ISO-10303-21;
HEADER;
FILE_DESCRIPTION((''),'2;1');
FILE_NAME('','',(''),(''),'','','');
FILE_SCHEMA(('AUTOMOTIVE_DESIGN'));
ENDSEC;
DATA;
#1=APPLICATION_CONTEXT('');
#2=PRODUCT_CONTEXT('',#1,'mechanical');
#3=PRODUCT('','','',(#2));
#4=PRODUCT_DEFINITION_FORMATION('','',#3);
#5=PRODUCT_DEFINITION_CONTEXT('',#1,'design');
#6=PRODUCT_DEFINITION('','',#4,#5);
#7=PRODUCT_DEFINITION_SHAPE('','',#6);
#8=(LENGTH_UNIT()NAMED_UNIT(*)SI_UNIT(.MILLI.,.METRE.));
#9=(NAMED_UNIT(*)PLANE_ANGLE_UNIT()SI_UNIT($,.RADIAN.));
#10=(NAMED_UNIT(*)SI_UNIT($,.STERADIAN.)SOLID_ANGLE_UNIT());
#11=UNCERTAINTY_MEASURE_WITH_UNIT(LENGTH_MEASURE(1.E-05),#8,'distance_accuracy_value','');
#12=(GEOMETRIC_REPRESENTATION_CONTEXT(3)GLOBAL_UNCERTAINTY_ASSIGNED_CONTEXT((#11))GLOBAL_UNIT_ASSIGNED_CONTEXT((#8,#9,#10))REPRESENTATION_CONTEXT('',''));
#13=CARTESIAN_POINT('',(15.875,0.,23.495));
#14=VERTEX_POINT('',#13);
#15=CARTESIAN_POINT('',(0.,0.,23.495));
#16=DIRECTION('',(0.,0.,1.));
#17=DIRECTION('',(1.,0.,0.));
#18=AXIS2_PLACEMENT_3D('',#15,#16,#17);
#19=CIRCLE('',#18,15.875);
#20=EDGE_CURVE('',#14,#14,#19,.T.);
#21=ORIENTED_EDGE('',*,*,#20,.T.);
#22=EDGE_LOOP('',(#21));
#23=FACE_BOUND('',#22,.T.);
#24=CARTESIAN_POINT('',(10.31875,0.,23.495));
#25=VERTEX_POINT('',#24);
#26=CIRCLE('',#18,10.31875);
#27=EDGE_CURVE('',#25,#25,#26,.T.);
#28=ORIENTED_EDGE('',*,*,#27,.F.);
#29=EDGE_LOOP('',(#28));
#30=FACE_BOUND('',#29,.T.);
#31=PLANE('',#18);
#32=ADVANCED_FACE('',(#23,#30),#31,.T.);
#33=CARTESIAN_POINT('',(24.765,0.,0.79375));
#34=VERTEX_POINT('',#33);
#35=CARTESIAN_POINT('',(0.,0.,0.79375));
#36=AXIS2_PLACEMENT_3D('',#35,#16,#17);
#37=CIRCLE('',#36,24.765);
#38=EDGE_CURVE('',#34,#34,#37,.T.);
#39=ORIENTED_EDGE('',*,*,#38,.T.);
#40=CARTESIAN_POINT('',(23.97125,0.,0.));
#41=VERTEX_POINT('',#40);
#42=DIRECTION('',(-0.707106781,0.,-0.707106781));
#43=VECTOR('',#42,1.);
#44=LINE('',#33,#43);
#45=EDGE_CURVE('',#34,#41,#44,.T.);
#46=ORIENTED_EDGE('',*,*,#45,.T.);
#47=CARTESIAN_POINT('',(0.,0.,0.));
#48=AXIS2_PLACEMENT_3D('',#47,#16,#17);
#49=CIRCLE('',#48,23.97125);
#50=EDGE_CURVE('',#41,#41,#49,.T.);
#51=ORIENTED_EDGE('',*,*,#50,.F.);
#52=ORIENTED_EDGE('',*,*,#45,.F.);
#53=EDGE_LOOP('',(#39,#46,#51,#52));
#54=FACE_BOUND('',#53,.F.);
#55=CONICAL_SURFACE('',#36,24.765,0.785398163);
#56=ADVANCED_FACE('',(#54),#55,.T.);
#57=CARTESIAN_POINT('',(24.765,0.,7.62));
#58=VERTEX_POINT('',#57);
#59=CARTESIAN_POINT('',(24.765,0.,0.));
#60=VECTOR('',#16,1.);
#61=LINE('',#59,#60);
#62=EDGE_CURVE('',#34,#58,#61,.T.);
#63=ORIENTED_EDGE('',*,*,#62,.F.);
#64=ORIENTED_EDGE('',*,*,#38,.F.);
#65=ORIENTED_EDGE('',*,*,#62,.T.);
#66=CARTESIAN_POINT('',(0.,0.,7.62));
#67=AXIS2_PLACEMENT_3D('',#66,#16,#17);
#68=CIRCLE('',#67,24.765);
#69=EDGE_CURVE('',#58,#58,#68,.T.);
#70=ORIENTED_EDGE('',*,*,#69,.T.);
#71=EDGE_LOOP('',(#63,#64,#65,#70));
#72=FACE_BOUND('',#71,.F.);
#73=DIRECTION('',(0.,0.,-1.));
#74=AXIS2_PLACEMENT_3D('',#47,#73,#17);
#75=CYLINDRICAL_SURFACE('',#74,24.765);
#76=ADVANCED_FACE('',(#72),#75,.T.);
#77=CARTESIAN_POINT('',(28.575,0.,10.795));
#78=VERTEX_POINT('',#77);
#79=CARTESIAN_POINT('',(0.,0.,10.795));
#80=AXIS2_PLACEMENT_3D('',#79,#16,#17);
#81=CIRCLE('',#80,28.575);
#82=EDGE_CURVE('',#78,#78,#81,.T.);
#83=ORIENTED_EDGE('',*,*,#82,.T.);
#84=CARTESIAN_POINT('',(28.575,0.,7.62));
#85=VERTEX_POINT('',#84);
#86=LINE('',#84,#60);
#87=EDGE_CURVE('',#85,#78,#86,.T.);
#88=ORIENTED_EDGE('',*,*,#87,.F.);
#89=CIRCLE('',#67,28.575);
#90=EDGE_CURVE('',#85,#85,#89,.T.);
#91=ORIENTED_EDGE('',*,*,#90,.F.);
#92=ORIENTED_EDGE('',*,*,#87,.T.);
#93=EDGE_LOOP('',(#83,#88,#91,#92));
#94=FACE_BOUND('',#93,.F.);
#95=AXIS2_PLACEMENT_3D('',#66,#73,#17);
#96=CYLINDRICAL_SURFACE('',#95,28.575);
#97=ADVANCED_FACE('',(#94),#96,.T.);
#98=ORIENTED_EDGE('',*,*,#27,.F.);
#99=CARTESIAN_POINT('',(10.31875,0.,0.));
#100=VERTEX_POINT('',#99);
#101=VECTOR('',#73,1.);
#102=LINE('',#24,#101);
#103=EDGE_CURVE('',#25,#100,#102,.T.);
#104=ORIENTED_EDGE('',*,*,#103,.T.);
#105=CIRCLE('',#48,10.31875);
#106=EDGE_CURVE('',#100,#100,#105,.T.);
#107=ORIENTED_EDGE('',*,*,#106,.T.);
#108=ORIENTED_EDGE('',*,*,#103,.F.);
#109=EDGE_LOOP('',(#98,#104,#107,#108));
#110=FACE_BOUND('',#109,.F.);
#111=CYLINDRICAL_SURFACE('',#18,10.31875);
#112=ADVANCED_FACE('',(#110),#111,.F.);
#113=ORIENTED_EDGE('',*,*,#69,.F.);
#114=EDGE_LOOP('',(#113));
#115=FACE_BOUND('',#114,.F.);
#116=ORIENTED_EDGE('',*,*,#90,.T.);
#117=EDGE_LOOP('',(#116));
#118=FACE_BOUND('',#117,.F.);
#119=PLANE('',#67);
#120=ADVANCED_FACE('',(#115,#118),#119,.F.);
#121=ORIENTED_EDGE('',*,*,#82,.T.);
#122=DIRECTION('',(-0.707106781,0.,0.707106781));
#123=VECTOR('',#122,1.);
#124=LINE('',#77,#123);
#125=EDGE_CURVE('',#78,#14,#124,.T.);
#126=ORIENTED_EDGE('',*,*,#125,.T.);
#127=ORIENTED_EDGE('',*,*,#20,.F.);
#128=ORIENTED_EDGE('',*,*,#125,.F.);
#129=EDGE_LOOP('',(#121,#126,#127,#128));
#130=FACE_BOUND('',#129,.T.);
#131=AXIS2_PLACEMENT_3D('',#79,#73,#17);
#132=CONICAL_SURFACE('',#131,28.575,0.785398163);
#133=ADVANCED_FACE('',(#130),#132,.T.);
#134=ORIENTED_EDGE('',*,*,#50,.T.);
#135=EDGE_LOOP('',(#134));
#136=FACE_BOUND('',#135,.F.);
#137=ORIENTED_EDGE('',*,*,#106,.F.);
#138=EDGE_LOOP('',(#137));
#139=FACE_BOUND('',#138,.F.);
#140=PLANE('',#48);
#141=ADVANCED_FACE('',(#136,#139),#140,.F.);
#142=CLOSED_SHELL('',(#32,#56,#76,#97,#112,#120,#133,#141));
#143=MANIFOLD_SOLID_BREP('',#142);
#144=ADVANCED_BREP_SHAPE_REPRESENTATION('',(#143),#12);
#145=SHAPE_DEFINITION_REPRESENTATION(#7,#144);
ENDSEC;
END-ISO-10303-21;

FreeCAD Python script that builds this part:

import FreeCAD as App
import Part
import Sketcher
Q = App.Units.Quantity


def edges_at(feature, points):
    """Names of the edges that pass closest to the given points."""
    edges = feature.Shape.Edges
    near = lambda p: min(range(len(edges)), key=lambda i: edges[i].distToShape(Part.Vertex(*p))[0])
    return sorted({f"Edge{near(p) + 1}" for p in points})

doc = App.newDocument("Part")
body = doc.addObject("PartDesign::Body", "Body")

sketch1 = body.newObject("Sketcher::SketchObject", "Sketch")
sketch1.AttachmentSupport = (doc.getObject("XY_Plane"), [""])
sketch1.MapMode = "FlatFace"
sketch1.addGeometry(Part.Circle(App.Vector(0, 0, 0), App.Vector(0, 0, 1), 25), False)
sketch1.addConstraint([
    Sketcher.Constraint("Coincident", 0, 3, -1, 1),
    Sketcher.Constraint("Diameter", 0, Q("1.95 in")),
])
pad1 = body.newObject("PartDesign::Pad", "Pad")
pad1.Profile = sketch1
pad1.Length = Q("0.3 in")

sketch2 = body.newObject("Sketcher::SketchObject", "Sketch001")
sketch2.AttachmentSupport = (doc.getObject("XY_Plane"), [""])
sketch2.MapMode = "FlatFace"
sketch2.AttachmentOffset = App.Placement(App.Vector(0, 0, 0.3 * 25.4), App.Rotation())
sketch2.addGeometry(Part.Circle(App.Vector(0, 0, 0), App.Vector(0, 0, 1), 29), False)
sketch2.addConstraint([
    Sketcher.Constraint("Coincident", 0, 3, -1, 1),
    Sketcher.Constraint("Diameter", 0, Q("2.25 in")),
])
pad2 = body.newObject("PartDesign::Pad", "Pad001")
pad2.Profile = sketch2
pad2.Length = Q("0.625 in")
doc.recompute()

chamfer = body.newObject("PartDesign::Chamfer", "Chamfer")
chamfer.Base = (pad2, edges_at(pad2, [(-28.575, 0, 23.495)]))
chamfer.ChamferType = "Two distances"
chamfer.Size = Q("0.5 in")
chamfer.Size2 = Q("0.5 in")

sketch3 = body.newObject("Sketcher::SketchObject", "Sketch002")
sketch3.AttachmentSupport = (doc.getObject("XY_Plane"), [""])
sketch3.MapMode = "FlatFace"
sketch3.AttachmentOffset = App.Placement(App.Vector(0, 0, 0.925 * 25.4), App.Rotation())
sketch3.addGeometry(Part.Circle(App.Vector(0, 0, 0), App.Vector(0, 0, 1), 10), False)
sketch3.addConstraint([
    Sketcher.Constraint("Coincident", 0, 3, -1, 1),
    Sketcher.Constraint("Diameter", 0, Q("0.8125 in")),
])
pocket1 = body.newObject("PartDesign::Pocket", "Pocket")
pocket1.Profile = sketch3
pocket1.Type = "ThroughAll"
doc.recompute()

chamfer2 = body.newObject("PartDesign::Chamfer", "Chamfer001")
chamfer2.Base = (pocket1, edges_at(pocket1, [(-24.765, 0, 0)]))
chamfer2.Size = Q("0.03125 in")

doc.recompute()
